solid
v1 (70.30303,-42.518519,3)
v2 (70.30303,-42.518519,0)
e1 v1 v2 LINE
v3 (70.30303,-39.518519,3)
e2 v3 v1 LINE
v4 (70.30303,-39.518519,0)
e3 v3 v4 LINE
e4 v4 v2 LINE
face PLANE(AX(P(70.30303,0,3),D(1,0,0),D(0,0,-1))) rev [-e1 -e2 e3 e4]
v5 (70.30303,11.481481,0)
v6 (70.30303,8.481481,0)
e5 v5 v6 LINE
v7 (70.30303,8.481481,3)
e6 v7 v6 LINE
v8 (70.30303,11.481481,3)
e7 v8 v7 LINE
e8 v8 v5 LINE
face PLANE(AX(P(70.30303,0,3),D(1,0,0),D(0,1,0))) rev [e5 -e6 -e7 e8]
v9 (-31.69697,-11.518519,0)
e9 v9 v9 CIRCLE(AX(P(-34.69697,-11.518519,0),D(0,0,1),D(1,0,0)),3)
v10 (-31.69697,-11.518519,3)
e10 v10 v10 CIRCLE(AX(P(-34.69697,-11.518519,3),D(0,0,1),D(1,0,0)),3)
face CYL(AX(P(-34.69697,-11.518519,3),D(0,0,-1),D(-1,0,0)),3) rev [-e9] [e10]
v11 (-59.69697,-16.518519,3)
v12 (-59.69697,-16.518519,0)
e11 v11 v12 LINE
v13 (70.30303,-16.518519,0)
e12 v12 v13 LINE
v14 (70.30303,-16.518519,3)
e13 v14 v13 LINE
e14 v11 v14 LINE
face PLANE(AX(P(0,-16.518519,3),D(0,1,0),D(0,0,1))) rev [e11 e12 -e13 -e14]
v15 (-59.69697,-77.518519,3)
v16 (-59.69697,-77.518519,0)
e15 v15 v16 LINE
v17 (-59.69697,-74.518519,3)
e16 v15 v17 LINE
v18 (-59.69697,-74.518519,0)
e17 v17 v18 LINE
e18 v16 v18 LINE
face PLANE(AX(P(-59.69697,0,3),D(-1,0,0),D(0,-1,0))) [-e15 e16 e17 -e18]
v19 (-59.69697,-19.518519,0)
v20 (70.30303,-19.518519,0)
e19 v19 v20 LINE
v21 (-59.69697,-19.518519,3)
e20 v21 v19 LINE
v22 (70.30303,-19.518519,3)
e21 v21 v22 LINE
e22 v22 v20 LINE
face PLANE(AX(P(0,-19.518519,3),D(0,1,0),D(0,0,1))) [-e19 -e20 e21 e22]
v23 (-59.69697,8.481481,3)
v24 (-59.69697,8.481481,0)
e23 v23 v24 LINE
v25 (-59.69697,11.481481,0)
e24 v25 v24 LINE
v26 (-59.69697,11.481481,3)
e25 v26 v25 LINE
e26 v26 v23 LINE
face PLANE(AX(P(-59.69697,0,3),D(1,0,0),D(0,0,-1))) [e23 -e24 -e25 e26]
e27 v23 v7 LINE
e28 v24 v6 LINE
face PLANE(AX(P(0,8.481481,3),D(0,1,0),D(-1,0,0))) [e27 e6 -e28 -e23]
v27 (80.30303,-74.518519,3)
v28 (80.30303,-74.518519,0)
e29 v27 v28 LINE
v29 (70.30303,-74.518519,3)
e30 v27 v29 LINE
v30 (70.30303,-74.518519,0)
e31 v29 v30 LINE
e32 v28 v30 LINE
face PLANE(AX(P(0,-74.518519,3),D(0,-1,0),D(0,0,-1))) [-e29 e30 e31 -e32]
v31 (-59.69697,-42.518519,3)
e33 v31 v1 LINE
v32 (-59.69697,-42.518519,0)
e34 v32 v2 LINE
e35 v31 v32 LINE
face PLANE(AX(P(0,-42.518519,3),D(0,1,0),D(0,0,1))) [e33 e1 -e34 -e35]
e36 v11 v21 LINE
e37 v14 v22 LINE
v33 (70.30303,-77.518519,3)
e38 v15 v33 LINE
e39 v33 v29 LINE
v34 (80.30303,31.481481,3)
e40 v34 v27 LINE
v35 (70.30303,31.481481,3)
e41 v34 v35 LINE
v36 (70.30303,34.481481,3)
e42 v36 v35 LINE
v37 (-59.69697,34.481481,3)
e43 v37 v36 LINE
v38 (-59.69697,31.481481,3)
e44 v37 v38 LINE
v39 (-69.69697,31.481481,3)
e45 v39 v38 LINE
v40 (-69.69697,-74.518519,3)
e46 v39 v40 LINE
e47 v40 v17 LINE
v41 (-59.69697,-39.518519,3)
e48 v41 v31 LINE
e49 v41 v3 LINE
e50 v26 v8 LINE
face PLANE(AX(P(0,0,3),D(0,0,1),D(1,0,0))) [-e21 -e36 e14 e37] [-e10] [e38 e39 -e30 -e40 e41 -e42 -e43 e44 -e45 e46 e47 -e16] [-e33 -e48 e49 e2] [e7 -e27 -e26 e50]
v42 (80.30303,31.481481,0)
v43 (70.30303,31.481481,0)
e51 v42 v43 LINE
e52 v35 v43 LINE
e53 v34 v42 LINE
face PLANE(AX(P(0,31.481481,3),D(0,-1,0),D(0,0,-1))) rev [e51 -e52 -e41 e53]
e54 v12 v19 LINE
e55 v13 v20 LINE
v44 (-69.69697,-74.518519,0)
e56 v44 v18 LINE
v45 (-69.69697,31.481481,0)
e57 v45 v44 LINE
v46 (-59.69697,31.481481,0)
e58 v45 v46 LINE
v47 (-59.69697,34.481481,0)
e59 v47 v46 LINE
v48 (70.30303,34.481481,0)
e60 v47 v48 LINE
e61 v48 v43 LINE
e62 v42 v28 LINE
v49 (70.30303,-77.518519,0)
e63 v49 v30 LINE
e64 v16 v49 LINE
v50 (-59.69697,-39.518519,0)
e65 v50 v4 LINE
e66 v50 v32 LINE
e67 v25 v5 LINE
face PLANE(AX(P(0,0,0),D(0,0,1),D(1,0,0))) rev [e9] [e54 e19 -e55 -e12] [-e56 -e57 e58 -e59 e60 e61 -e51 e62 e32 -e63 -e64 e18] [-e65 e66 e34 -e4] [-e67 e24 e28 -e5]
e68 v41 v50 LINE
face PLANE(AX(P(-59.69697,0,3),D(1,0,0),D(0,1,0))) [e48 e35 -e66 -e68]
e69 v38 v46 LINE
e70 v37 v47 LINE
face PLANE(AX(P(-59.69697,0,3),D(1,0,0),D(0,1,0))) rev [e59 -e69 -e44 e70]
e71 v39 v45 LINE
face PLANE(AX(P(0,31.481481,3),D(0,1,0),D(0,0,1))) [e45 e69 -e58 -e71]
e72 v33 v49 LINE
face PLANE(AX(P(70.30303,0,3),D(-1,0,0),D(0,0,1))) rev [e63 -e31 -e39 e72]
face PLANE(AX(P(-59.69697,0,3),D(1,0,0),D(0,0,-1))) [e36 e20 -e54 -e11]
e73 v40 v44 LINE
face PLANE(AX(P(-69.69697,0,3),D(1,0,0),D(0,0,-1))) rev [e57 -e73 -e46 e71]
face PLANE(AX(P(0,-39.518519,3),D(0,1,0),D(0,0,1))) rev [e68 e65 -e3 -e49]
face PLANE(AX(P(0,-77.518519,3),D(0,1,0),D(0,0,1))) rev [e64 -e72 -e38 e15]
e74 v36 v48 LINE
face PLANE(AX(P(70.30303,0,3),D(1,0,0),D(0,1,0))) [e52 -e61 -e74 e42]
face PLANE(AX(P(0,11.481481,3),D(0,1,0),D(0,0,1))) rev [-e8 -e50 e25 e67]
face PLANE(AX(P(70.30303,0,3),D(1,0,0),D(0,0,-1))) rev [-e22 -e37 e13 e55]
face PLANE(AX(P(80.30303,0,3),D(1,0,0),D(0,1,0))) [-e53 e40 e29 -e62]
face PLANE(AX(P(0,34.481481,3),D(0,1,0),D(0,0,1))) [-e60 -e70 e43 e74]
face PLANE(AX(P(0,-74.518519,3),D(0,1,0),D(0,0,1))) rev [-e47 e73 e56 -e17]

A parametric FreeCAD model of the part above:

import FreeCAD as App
import Part
import Sketcher


def add_polygon(sketch, points):
    """Adds a closed chain of lines whose ends are joined by coincident constraints."""
    first, n = sketch.GeometryCount, len(points)
    for a, b in zip(points, points[1:] + points[:1]):
        sketch.addGeometry(Part.LineSegment(App.Vector(*a, 0), App.Vector(*b, 0)), False)
    for i in range(n):
        sketch.addConstraint(Sketcher.Constraint("Coincident", first + i, 2, first + (i + 1) % n, 1))

doc = App.newDocument("Part")
params = doc.addObject("Spreadsheet::Sheet", "Params")
for row, (alias, value) in enumerate([
    ("sketch1_diameter", "6 mm"),
    ("sketch1_width", "130 mm"),
    ("sketch1_width2", "10 mm"),
    ("sketch1_height", "3 mm"),
    ("sketch1_height2", "106 mm"),
    ("pad1_length", "3 mm"),
], start=1):
    params.set(f"A{row}", alias)
    params.set(f"B{row}", "=" + value)
    params.setAlias(f"B{row}", alias)

body = doc.addObject("PartDesign::Body", "Body")

sketch1 = body.newObject("Sketcher::SketchObject", "Sketch")
sketch1.AttachmentSupport = (doc.getObject("XY_Plane"), [""])
sketch1.MapMode = "FlatFace"
add_polygon(sketch1, [(70.30303, 34.481481), (-59.69697, 34.481481), (-59.69697, 31.481481), (-69.69697, 31.481481), (-69.69697, -74.518519), (-59.69697, -74.518519), (-59.69697, -77.518519), (70.30303, -77.518519), (70.30303, -74.518519), (80.30303, -74.518519), (80.30303, 31.481481), (70.30303, 31.481481)])
add_polygon(sketch1, [(70.30303, -42.518519), (-59.69697, -42.518519), (-59.69697, -39.518519), (70.30303, -39.518519)])
add_polygon(sketch1, [(70.30303, -19.518519), (-59.69697, -19.518519), (-59.69697, -16.518519), (70.30303, -16.518519)])
sketch1.addGeometry(Part.Circle(App.Vector(-34.69697, -11.518519, 0), App.Vector(0, 0, 1), 3), False)
add_polygon(sketch1, [(70.30303, 8.481481), (-59.69697, 8.481481), (-59.69697, 11.481481), (70.30303, 11.481481)])
sketch1.addConstraint([
    Sketcher.Constraint("Horizontal", 0),
    Sketcher.Constraint("Vertical", 1),
    Sketcher.Constraint("Horizontal", 2),
    Sketcher.Constraint("Vertical", 3),
    Sketcher.Constraint("Horizontal", 4),
    Sketcher.Constraint("Vertical", 5),
    Sketcher.Constraint("Horizontal", 6),
    Sketcher.Constraint("Vertical", 7),
    Sketcher.Constraint("Horizontal", 8),
    Sketcher.Constraint("Vertical", 9),
    Sketcher.Constraint("Horizontal", 10),
    Sketcher.Constraint("Vertical", 11),
    Sketcher.Constraint("Horizontal", 12),
    Sketcher.Constraint("Vertical", 13),
    Sketcher.Constraint("Horizontal", 14),
    Sketcher.Constraint("Vertical", 15),
    Sketcher.Constraint("Horizontal", 16),
    Sketcher.Constraint("Vertical", 17),
    Sketcher.Constraint("Horizontal", 18),
    Sketcher.Constraint("Vertical", 19),
    Sketcher.Constraint("Horizontal", 21),
    Sketcher.Constraint("Vertical", 22),
    Sketcher.Constraint("Horizontal", 23),
    Sketcher.Constraint("Vertical", 24),
    Sketcher.Constraint("Horizontal", 4, 2, 7, 2),
    Sketcher.Constraint("Horizontal", 2, 2, 9, 2),
    Sketcher.Constraint("Vertical", 1, 2, 4, 2),
    Sketcher.Constraint("Vertical", 7, 2, 10, 2),
    Sketcher.Constraint("Vertical", 5, 2, 12, 2),
    Sketcher.Constraint("Vertical", 11, 2, 14, 2),
    Sketcher.Constraint("Vertical", 13, 2, 16, 2),
    Sketcher.Constraint("Vertical", 15, 2, 18, 2),
    Sketcher.Constraint("Vertical", 17, 2, 21, 2),
    Sketcher.Constraint("Vertical", 19, 2, 23, 2),
    Sketcher.Constraint("Equal", 4, 8),
    Sketcher.Constraint("Equal", 1, 5),
    Sketcher.Constraint("Equal", 11, 13),
    Sketcher.Constraint("Equal", 15, 17),
    Sketcher.Constraint("Equal", 19, 22),
    Sketcher.Constraint("Diameter", 20, 6.0),
    Sketcher.Constraint("DistanceX", 0, 2, 0, 1, 130.0),
    Sketcher.Constraint("DistanceX", 2, 2, 2, 1, 10.0),
    Sketcher.Constraint("DistanceY", 1, 2, 1, 1, 3.0),
    Sketcher.Constraint("DistanceY", 3, 2, 3, 1, 106.0),
    Sketcher.Constraint("DistanceX", 0, 2, 20, 3, 25.0),
    Sketcher.Constraint("DistanceY", 20, 3, 0, 2, 46.0),
    Sketcher.Constraint("DistanceY", 4, 2, 12, 2, 32.0),
    Sketcher.Constraint("DistanceY", 13, 2, 16, 2, 20.0),
    Sketcher.Constraint("DistanceY", 21, 2, 1, 2, 23.0),
    Sketcher.Constraint("DistanceX", 20, 3, -1, 1, 34.69697),
    Sketcher.Constraint("DistanceY", 20, 3, -1, 1, 11.518519),
])
sketch1.setExpression("Constraints[63]", "Params.sketch1_diameter")
sketch1.setExpression("Constraints[64]", "Params.sketch1_width")
sketch1.setExpression("Constraints[65]", "Params.sketch1_width2")
sketch1.setExpression("Constraints[66]", "Params.sketch1_height")
sketch1.setExpression("Constraints[67]", "Params.sketch1_height2")
pad1 = body.newObject("PartDesign::Pad", "Pad")
pad1.Profile = sketch1
pad1.setExpression("Length", "Params.pad1_length")

doc.recompute()
